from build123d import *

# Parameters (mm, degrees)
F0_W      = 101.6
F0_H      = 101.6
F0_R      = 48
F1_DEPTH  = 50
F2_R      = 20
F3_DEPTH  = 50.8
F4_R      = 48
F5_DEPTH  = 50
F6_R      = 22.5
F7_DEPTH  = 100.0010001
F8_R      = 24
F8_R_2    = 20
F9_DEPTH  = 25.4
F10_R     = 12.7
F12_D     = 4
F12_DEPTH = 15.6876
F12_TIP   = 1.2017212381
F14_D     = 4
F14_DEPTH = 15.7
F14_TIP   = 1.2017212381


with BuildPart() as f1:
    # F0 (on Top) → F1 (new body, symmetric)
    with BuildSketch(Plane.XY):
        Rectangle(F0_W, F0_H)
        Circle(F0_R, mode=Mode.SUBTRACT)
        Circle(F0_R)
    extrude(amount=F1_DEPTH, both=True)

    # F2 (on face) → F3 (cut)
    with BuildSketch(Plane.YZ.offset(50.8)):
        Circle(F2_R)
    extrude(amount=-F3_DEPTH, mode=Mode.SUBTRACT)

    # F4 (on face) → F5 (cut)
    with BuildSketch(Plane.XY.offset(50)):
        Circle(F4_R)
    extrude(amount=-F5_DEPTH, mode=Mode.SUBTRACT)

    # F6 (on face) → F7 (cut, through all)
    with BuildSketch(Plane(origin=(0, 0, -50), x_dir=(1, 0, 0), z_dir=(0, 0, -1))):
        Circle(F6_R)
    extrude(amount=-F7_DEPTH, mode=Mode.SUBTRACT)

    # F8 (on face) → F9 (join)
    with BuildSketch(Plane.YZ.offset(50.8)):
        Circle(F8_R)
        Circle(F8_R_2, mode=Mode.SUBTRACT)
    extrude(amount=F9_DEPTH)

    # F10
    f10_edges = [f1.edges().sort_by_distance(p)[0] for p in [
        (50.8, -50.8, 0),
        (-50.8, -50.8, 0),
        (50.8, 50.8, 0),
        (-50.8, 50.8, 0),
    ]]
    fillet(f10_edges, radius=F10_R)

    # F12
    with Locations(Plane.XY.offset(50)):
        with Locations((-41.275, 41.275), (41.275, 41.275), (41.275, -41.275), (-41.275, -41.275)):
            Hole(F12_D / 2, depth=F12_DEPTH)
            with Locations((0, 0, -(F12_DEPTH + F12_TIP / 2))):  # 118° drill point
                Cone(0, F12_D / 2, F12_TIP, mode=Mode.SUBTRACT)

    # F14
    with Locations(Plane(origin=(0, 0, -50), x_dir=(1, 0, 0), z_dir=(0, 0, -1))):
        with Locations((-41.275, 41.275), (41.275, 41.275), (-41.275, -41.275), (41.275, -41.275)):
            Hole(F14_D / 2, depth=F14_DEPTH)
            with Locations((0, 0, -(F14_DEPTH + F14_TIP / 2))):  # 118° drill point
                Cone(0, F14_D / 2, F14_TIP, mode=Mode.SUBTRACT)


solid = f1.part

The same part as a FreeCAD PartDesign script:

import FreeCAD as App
import Part
import Sketcher
from FreeCAD import Vector


def edges_at(feature, points):
    """Names of the edges that pass closest to the given points."""
    edges = feature.Shape.Edges
    near = lambda p: min(range(len(edges)), key=lambda i: edges[i].distToShape(Part.Vertex(*p))[0])
    return sorted({f"Edge{near(p) + 1}" for p in points})

doc = App.newDocument("Part")
params = doc.addObject("Spreadsheet::Sheet", "Params")
for row, (alias, value) in enumerate([
    ("sketch1_width", "101.6 mm"),
    ("pad1_length", "100 mm"),
    ("sketch2_diameter", "40 mm"),
    ("pocket1_length", "50.8 mm"),
    ("sketch3_diameter", "96 mm"),
    ("pocket2_length", "50 mm"),
    ("sketch4_diameter", "45 mm"),
    ("sketch5_diameter", "48 mm"),
    ("sketch5_diameter2", "40 mm"),
    ("pad2_length", "25.4 mm"),
    ("fillet_radius", "12.7 mm"),
    ("sketch6_diameter", "4 mm"),
    ("hole_diameter", "4 mm"),
    ("hole_depth", "15.6876 mm"),
    ("sketch7_diameter", "4 mm"),
    ("hole2_diameter", "4 mm"),
    ("hole2_depth", "15.7 mm"),
], start=1):
    params.set(f"A{row}", alias)
    params.set(f"B{row}", "=" + value)
    params.setAlias(f"B{row}", alias)

body = doc.addObject("PartDesign::Body", "Body")

# Sketch on XY plane
sketch1 = body.newObject("Sketcher::SketchObject", "Sketch")
sketch1.AttachmentSupport = (doc.getObject("XY_Plane"), [""])
sketch1.MapMode = "FlatFace"
sketch1.addGeometry(Part.LineSegment(Vector(-51, 51, 0), Vector(-51, -51, 0)), False)
sketch1.addGeometry(Part.LineSegment(Vector(-51, -51, 0), Vector(51, -51, 0)), False)
sketch1.addGeometry(Part.LineSegment(Vector(51, -51, 0), Vector(51, 51, 0)), False)
sketch1.addGeometry(Part.LineSegment(Vector(51, 51, 0), Vector(-51, 51, 0)), False)
sketch1.addConstraint(Sketcher.Constraint("Coincident", 0, 2, 1, 1))
sketch1.addConstraint(Sketcher.Constraint("Coincident", 1, 2, 2, 1))
sketch1.addConstraint(Sketcher.Constraint("Coincident", 2, 2, 3, 1))
sketch1.addConstraint(Sketcher.Constraint("Coincident", 3, 2, 0, 1))
sketch1.addConstraint(Sketcher.Constraint("Vertical", 0))
sketch1.addConstraint(Sketcher.Constraint("Horizontal", 1))
sketch1.addConstraint(Sketcher.Constraint("Vertical", 2))
sketch1.addConstraint(Sketcher.Constraint("Horizontal", 3))
sketch1.addConstraint(Sketcher.Constraint("Symmetric", 0, 2, 2, 2, -1, 1))
sketch1.addConstraint(Sketcher.Constraint("Equal", 3, 0))
sketch1.addConstraint(Sketcher.Constraint("DistanceX", 1, 1, 1, 2, 101.6))
sketch1.setExpression("Constraints[10]", "Params.sketch1_width")
pad1 = body.newObject("PartDesign::Pad", "Pad")
pad1.Profile = sketch1
pad1.setExpression("Length", "Params.pad1_length")
pad1.Midplane = True

# Sketch on YZ plane
sketch2 = body.newObject("Sketcher::SketchObject", "Sketch001")
sketch2.AttachmentSupport = (doc.getObject("YZ_Plane"), [""])
sketch2.MapMode = "FlatFace"
sketch2.AttachmentOffset = App.Placement(Vector(0, 0, 50.8), App.Rotation())
sketch2.addGeometry(Part.Circle(Vector(0, 0, 0), Vector(0, 0, 1), 20), False)
sketch2.addConstraint(Sketcher.Constraint("Coincident", 0, 3, -1, 1))
sketch2.addConstraint(Sketcher.Constraint("Diameter", 0, 40.0))
sketch2.setExpression("Constraints[1]", "Params.sketch2_diameter")
pocket1 = body.newObject("PartDesign::Pocket", "Pocket")
pocket1.Profile = sketch2
pocket1.setExpression("Length", "Params.pocket1_length")

# Sketch on XY plane
sketch3 = body.newObject("Sketcher::SketchObject", "Sketch002")
sketch3.AttachmentSupport = (doc.getObject("XY_Plane"), [""])
sketch3.MapMode = "FlatFace"
sketch3.AttachmentOffset = App.Placement(Vector(0, 0, 50), App.Rotation())
sketch3.addGeometry(Part.Circle(Vector(0, 0, 0), Vector(0, 0, 1), 48), False)
sketch3.addConstraint(Sketcher.Constraint("Coincident", 0, 3, -1, 1))
sketch3.addConstraint(Sketcher.Constraint("Diameter", 0, 96.0))
sketch3.setExpression("Constraints[1]", "Params.sketch3_diameter")
pocket2 = body.newObject("PartDesign::Pocket", "Pocket001")
pocket2.Profile = sketch3
pocket2.setExpression("Length", "Params.pocket2_length")

# Sketch on XY plane
sketch4 = body.newObject("Sketcher::SketchObject", "Sketch003")
sketch4.AttachmentSupport = (doc.getObject("XY_Plane"), [""])
sketch4.MapMode = "FlatFace"
sketch4.AttachmentOffset = App.Placement(Vector(0, 0, -50), App.Rotation())
sketch4.addGeometry(Part.Circle(Vector(0, 0, 0), Vector(0, 0, 1), 22), False)
sketch4.addConstraint(Sketcher.Constraint("Coincident", 0, 3, -1, 1))
sketch4.addConstraint(Sketcher.Constraint("Diameter", 0, 45.0))
sketch4.setExpression("Constraints[1]", "Params.sketch4_diameter")
pocket3 = body.newObject("PartDesign::Pocket", "Pocket002")
pocket3.Profile = sketch4
pocket3.Type = "ThroughAll"
pocket3.Reversed = True

# Sketch on YZ plane
sketch5 = body.newObject("Sketcher::SketchObject", "Sketch004")
sketch5.AttachmentSupport = (doc.getObject("YZ_Plane"), [""])
sketch5.MapMode = "FlatFace"
sketch5.AttachmentOffset = App.Placement(Vector(0, 0, 50.8), App.Rotation())
sketch5.addGeometry(Part.Circle(Vector(0, 0, 0), Vector(0, 0, 1), 24), False)
sketch5.addGeometry(Part.Circle(Vector(0, 0, 0), Vector(0, 0, 1), 20), False)
sketch5.addConstraint(Sketcher.Constraint("Coincident", 0, 3, -1, 1))
sketch5.addConstraint(Sketcher.Constraint("Coincident", 1, 3, -1, 1))
sketch5.addConstraint(Sketcher.Constraint("Diameter", 0, 48.0))
sketch5.addConstraint(Sketcher.Constraint("Diameter", 1, 40.0))
sketch5.setExpression("Constraints[2]", "Params.sketch5_diameter")
sketch5.setExpression("Constraints[3]", "Params.sketch5_diameter2")
pad2 = body.newObject("PartDesign::Pad", "Pad001")
pad2.Profile = sketch5
pad2.setExpression("Length", "Params.pad2_length")
doc.recompute()

fillet = body.newObject("PartDesign::Fillet", "Fillet")
fillet.Base = (pad2, edges_at(pad2, [
    (50.8, -50.8, 0),
    (-50.8, -50.8, 0),
    (50.8, 50.8, 0),
    (-50.8, 50.8, 0),
]))
fillet.setExpression("Radius", "Params.fillet_radius")

# Sketch on XY plane
sketch6 = body.newObject("Sketcher::SketchObject", "Sketch005")
sketch6.AttachmentSupport = (doc.getObject("XY_Plane"), [""])
sketch6.MapMode = "FlatFace"
sketch6.AttachmentOffset = App.Placement(Vector(0, 0, 50), App.Rotation())
sketch6.addGeometry(Part.Circle(Vector(-41.3, 41.3, 0), Vector(0, 0, 1), 2), False)
sketch6.addGeometry(Part.Circle(Vector(41.3, 41.3, 0), Vector(0, 0, 1), 2), False)
sketch6.addGeometry(Part.Circle(Vector(41.3, -41.3, 0), Vector(0, 0, 1), 2), False)
sketch6.addGeometry(Part.Circle(Vector(-41.3, -41.3, 0), Vector(0, 0, 1), 2), False)
sketch6.addConstraint(Sketcher.Constraint("Equal", 0, 1))
sketch6.addConstraint(Sketcher.Constraint("Equal", 1, 2))
sketch6.addConstraint(Sketcher.Constraint("Equal", 2, 3))
sketch6.addConstraint(Sketcher.Constraint("Symmetric", 0, 3, 2, 3, -1, 1))
sketch6.addConstraint(Sketcher.Constraint("Symmetric", 1, 3, 3, 3, -1, 1))
sketch6.addConstraint(Sketcher.Constraint("Symmetric", 0, 3, 1, 3, -2))
sketch6.addConstraint(Sketcher.Constraint("Diameter", 0, 4.0))
sketch6.addConstraint(Sketcher.Constraint("DistanceX", 0, 3, 1, 3, 82.55))
sketch6.addConstraint(Sketcher.Constraint("DistanceY", 2, 3, 1, 3, 82.55))
sketch6.setExpression("Constraints[6]", "Params.sketch6_diameter")
doc.recompute()
hole = body.newObject("PartDesign::Hole", "Hole")
hole.Profile = sketch6
hole.ThreadType = "None"
hole.setExpression("Diameter", "Params.hole_diameter")
hole.DepthType = "Dimension"
hole.setExpression("Depth", "Params.hole_depth")
hole.DrillPoint = "Angled"
hole.DrillPointAngle = 118

# Sketch on XY plane
sketch7 = body.newObject("Sketcher::SketchObject", "Sketch006")
sketch7.AttachmentSupport = (doc.getObject("XY_Plane"), [""])
sketch7.MapMode = "FlatFace"
sketch7.AttachmentOffset = App.Placement(Vector(0, 0, -50), App.Rotation())
sketch7.addGeometry(Part.Circle(Vector(-41.3, -41.3, 0), Vector(0, 0, 1), 2), False)
sketch7.addGeometry(Part.Circle(Vector(41.3, -41.3, 0), Vector(0, 0, 1), 2), False)
sketch7.addGeometry(Part.Circle(Vector(-41.3, 41.3, 0), Vector(0, 0, 1), 2), False)
sketch7.addGeometry(Part.Circle(Vector(41.3, 41.3, 0), Vector(0, 0, 1), 2), False)
sketch7.addConstraint(Sketcher.Constraint("Equal", 0, 1))
sketch7.addConstraint(Sketcher.Constraint("Equal", 1, 2))
sketch7.addConstraint(Sketcher.Constraint("Equal", 2, 3))
sketch7.addConstraint(Sketcher.Constraint("Symmetric", 1, 3, 2, 3, -1, 1))
sketch7.addConstraint(Sketcher.Constraint("Symmetric", 0, 3, 3, 3, -1, 1))
sketch7.addConstraint(Sketcher.Constraint("Symmetric", 0, 3, 1, 3, -2))
sketch7.addConstraint(Sketcher.Constraint("Diameter", 0, 4.0))
sketch7.addConstraint(Sketcher.Constraint("DistanceX", 0, 3, 1, 3, 82.55))
sketch7.addConstraint(Sketcher.Constraint("DistanceY", 0, 3, 2, 3, 82.55))
sketch7.setExpression("Constraints[6]", "Params.sketch7_diameter")
doc.recompute()
hole2 = body.newObject("PartDesign::Hole", "Hole001")
hole2.Profile = sketch7
hole2.ThreadType = "None"
hole2.setExpression("Diameter", "Params.hole2_diameter")
hole2.DepthType = "Dimension"
hole2.setExpression("Depth", "Params.hole2_depth")
hole2.DrillPoint = "Angled"
hole2.DrillPointAngle = 118
hole2.Reversed = True

doc.recompute()
